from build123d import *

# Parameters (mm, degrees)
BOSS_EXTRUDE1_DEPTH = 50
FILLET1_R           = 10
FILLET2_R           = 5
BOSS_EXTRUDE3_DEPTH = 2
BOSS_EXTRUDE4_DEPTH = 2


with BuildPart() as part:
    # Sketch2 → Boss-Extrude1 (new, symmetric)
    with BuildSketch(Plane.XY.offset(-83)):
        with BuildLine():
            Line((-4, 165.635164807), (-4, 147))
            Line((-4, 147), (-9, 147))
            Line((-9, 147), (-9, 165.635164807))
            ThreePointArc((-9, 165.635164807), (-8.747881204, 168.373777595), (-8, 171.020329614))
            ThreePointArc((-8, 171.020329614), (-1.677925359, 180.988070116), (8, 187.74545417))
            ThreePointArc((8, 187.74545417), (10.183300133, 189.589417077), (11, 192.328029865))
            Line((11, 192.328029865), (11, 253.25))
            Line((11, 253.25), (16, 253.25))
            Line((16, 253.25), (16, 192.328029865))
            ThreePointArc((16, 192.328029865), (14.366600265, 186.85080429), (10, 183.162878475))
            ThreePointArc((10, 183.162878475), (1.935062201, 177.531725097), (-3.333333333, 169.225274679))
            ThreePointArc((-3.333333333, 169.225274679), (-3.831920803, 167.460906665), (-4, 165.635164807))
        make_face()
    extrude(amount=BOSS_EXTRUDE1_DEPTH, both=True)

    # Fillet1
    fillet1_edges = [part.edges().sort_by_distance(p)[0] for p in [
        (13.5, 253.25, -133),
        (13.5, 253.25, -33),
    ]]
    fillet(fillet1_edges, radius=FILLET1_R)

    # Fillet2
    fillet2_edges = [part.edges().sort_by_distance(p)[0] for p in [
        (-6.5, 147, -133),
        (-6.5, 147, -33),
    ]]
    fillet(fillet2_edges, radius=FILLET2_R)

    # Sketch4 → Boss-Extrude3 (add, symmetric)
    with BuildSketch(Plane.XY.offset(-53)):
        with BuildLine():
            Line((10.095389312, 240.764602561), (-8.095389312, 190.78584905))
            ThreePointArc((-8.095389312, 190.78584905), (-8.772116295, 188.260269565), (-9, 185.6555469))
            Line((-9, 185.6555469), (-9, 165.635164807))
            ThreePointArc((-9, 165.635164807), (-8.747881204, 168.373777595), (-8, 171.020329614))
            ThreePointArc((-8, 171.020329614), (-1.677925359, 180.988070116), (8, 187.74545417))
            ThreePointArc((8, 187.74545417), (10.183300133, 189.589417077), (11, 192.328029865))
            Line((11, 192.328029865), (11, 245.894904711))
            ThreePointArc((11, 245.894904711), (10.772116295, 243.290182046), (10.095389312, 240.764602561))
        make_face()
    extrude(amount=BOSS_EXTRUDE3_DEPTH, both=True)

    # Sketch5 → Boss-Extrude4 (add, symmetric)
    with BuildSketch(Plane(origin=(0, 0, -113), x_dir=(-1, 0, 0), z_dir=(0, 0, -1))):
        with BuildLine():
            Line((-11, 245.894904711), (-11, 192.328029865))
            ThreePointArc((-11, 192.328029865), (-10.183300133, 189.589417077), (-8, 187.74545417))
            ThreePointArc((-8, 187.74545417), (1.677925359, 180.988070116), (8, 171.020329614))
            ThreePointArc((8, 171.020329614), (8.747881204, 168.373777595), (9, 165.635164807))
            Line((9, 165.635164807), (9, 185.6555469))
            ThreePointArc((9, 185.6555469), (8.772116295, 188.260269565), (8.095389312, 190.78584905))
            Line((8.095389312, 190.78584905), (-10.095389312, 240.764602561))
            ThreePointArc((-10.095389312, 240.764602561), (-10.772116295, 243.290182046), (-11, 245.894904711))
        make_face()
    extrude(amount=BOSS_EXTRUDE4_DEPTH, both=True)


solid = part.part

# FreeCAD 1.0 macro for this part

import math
import FreeCAD as App
import Part
import Sketcher

V = App.Vector
Q = App.Units.Quantity


def edges_at(feature, points):
    """Names of the edges that pass closest to the given points."""
    edges = feature.Shape.Edges
    near = lambda p: min(range(len(edges)), key=lambda i: edges[i].distToShape(Part.Vertex(*p))[0])
    return sorted({f"Edge{near(p) + 1}" for p in points})

doc = App.newDocument("Part")
body = doc.addObject("PartDesign::Body", "Body")

sketch1 = doc.addObject("Sketcher::SketchObject", "Sketch")
body.addObject(sketch1)
sketch1.AttachmentSupport = (doc.XY_Plane, [""])
sketch1.MapMode = "FlatFace"
sketch1.AttachmentOffset = App.Placement(V(0, 0, -83), App.Rotation())
sketch1.addGeometry([
    Part.LineSegment(V(-4, 147, 0), V(-4, 165.635165, 0)),
    Part.ArcOfCircle(Part.Circle(V(6, 165.635165, 0), V(0, 0, 1), 10), math.radians(158.96053), math.radians(180)),
    Part.ArcOfCircle(Part.Circle(V(20, 160.25, 0), V(0, 0, 1), 25), math.radians(113.578178), math.radians(158.96053)),
    Part.ArcOfCircle(Part.Circle(V(6, 192.32803, 0), V(0, 0, 1), 10), math.radians(-66.421822), math.radians(0)),
    Part.LineSegment(V(16, 192.32803, 0), V(16, 253.25, 0)),
    Part.LineSegment(V(16, 253.25, 0), V(11, 253.25, 0)),
    Part.LineSegment(V(11, 253.25, 0), V(11, 192.32803, 0)),
    Part.ArcOfCircle(Part.Circle(V(6, 192.32803, 0), V(0, 0, 1), 5), math.radians(-66.421822), math.radians(0)),
    Part.ArcOfCircle(Part.Circle(V(20, 160.25, 0), V(0, 0, 1), 30), math.radians(113.578178), math.radians(158.96053)),
    Part.ArcOfCircle(Part.Circle(V(6, 165.635165, 0), V(0, 0, 1), 15), math.radians(158.96053), math.radians(180)),
    Part.LineSegment(V(-9, 165.635165, 0), V(-9, 147, 0)),
    Part.LineSegment(V(-9, 147, 0), V(-4, 147, 0)),
], False)
sketch1.addConstraint([
    Sketcher.Constraint("Tangent", 0, 2, 1, 2),
    Sketcher.Constraint("Tangent", 1, 1, 2, 2),
    Sketcher.Constraint("Tangent", 2, 1, 3, 1),
    Sketcher.Constraint("Tangent", 3, 2, 4, 1),
    Sketcher.Constraint("Coincident", 4, 2, 5, 1),
    Sketcher.Constraint("Coincident", 5, 2, 6, 1),
    Sketcher.Constraint("Tangent", 6, 2, 7, 2),
    Sketcher.Constraint("Tangent", 7, 1, 8, 1),
    Sketcher.Constraint("Tangent", 8, 2, 9, 1),
    Sketcher.Constraint("Tangent", 9, 2, 10, 1),
    Sketcher.Constraint("Coincident", 10, 2, 11, 1),
    Sketcher.Constraint("Coincident", 11, 2, 0, 1),
    Sketcher.Constraint("Vertical", 0),
    Sketcher.Constraint("Vertical", 4),
    Sketcher.Constraint("Horizontal", 5),
    Sketcher.Constraint("Vertical", 6),
    Sketcher.Constraint("Vertical", 10),
    Sketcher.Constraint("Horizontal", 11),
    Sketcher.Constraint("Coincident", 7, 3, 3, 3),
    Sketcher.Constraint("Coincident", 8, 3, 2, 3),
    Sketcher.Constraint("Coincident", 9, 3, 1, 3),
    Sketcher.Constraint("Equal", 1, 3),
    Sketcher.Constraint("Vertical", 1, 3, 3, 3),
    Sketcher.Constraint("Radius", 1, 10.0),
    Sketcher.Constraint("Radius", 2, 25.0),
    Sketcher.Constraint("Radius", 7, 5.0),
    Sketcher.Constraint("DistanceX", -1, 1, 1, 3, 6.0),
    Sketcher.Constraint("DistanceX", -1, 1, 2, 3, 20.0),
    Sketcher.Constraint("DistanceY", -1, 1, 10, 2, 147.0),
    Sketcher.Constraint("DistanceY", -1, 1, 2, 3, 160.25),
    Sketcher.Constraint("DistanceY", -1, 1, 4, 2, 253.25),
])
pad1 = doc.addObject("PartDesign::Pad", "Pad")
body.addObject(pad1)
pad1.Profile = sketch1
pad1.Length = 100
pad1.Midplane = True
doc.recompute()

fillet = doc.addObject("PartDesign::Fillet", "Fillet")
body.addObject(fillet)
fillet.Base = (pad1, edges_at(pad1, [(13.5, 253.25, -133), (13.5, 253.25, -33)]))
fillet.Radius = 10
doc.recompute()

fillet2 = doc.addObject("PartDesign::Fillet", "Fillet001")
body.addObject(fillet2)
fillet2.Base = (fillet, edges_at(fillet, [(-6.5, 147, -133), (-6.5, 147, -33)]))
fillet2.Radius = 5

sketch2 = doc.addObject("Sketcher::SketchObject", "Sketch001")
body.addObject(sketch2)
sketch2.AttachmentSupport = (doc.XY_Plane, [""])
sketch2.MapMode = "FlatFace"
sketch2.AttachmentOffset = App.Placement(V(0, 0, -53), App.Rotation())
sketch2.addGeometry([
    Part.LineSegment(V(10.095389, 240.764603, 0), V(-8.095389, 190.785849, 0)),
    Part.ArcOfCircle(Part.Circle(V(6, 185.655547, 0), V(0, 0, 1), 15), math.radians(160), math.radians(180)),
    Part.LineSegment(V(-9, 185.655547, 0), V(-9, 165.635165, 0)),
    Part.ArcOfCircle(Part.Circle(V(6, 165.635165, 0), V(0, 0, 1), 15), math.radians(158.96053), math.radians(180)),
    Part.ArcOfCircle(Part.Circle(V(20, 160.25, 0), V(0, 0, 1), 30), math.radians(113.578178), math.radians(158.96053)),
    Part.ArcOfCircle(Part.Circle(V(6, 192.32803, 0), V(0, 0, 1), 5), math.radians(-66.421822), math.radians(0)),
    Part.LineSegment(V(11, 192.32803, 0), V(11, 245.894905, 0)),
    Part.ArcOfCircle(Part.Circle(V(-4, 245.894905, 0), V(0, 0, 1), 15), math.radians(-20), math.radians(0)),
], False)
sketch2.addConstraint([
    Sketcher.Constraint("Tangent", 0, 2, 1, 1),
    Sketcher.Constraint("Tangent", 1, 2, 2, 1),
    Sketcher.Constraint("Tangent", 2, 2, 3, 2),
    Sketcher.Constraint("Tangent", 3, 1, 4, 2),
    Sketcher.Constraint("Tangent", 4, 1, 5, 1),
    Sketcher.Constraint("Tangent", 5, 2, 6, 1),
    Sketcher.Constraint("Tangent", 6, 2, 7, 2),
    Sketcher.Constraint("Tangent", 7, 1, 0, 1),
    Sketcher.Constraint("Vertical", 2),
    Sketcher.Constraint("Vertical", 6),
    Sketcher.Constraint("Equal", 1, 3),
    Sketcher.Constraint("Equal", 3, 7),
    Sketcher.Constraint("Vertical", 3, 3, 5, 3),
    Sketcher.Constraint("Radius", 1, 15.0),
    Sketcher.Constraint("Radius", 4, 30.0),
    Sketcher.Constraint("Radius", 5, 5.0),
    Sketcher.Constraint("Angle", 0, Q("-110 deg")),
    Sketcher.Constraint("DistanceX", -1, 1, 1, 3, 6.0),
    Sketcher.Constraint("DistanceX", -1, 1, 4, 3, 20.0),
    Sketcher.Constraint("DistanceY", -1, 1, 4, 3, 160.25),
    Sketcher.Constraint("DistanceY", 2, 2, 2, 1, 20.020382),
])
pad2 = doc.addObject("PartDesign::Pad", "Pad001")
body.addObject(pad2)
pad2.Profile = sketch2
pad2.Length = 4
pad2.Midplane = True

sketch3 = doc.addObject("Sketcher::SketchObject", "Sketch002")
body.addObject(sketch3)
sketch3.AttachmentSupport = (doc.XY_Plane, [""])
sketch3.MapMode = "FlatFace"
sketch3.AttachmentOffset = App.Placement(V(0, 0, -113), App.Rotation())
sketch3.addGeometry([
    Part.LineSegment(V(11, 245.894905, 0), V(11, 192.32803, 0)),
    Part.ArcOfCircle(Part.Circle(V(6, 192.32803, 0), V(0, 0, 1), 5), math.radians(-66.421822), math.radians(0)),
    Part.ArcOfCircle(Part.Circle(V(20, 160.25, 0), V(0, 0, 1), 30), math.radians(113.578178), math.radians(158.96053)),
    Part.ArcOfCircle(Part.Circle(V(6, 165.635165, 0), V(0, 0, 1), 15), math.radians(158.96053), math.radians(180)),
    Part.LineSegment(V(-9, 165.635165, 0), V(-9, 185.655547, 0)),
    Part.ArcOfCircle(Part.Circle(V(6, 185.655547, 0), V(0, 0, 1), 15), math.radians(160), math.radians(180)),
    Part.LineSegment(V(-8.095389, 190.785849, 0), V(10.095389, 240.764603, 0)),
    Part.ArcOfCircle(Part.Circle(V(-4, 245.894905, 0), V(0, 0, 1), 15), math.radians(-20), math.radians(0)),
], False)
sketch3.addConstraint([
    Sketcher.Constraint("Tangent", 0, 2, 1, 2),
    Sketcher.Constraint("Tangent", 1, 1, 2, 1),
    Sketcher.Constraint("Tangent", 2, 2, 3, 1),
    Sketcher.Constraint("Tangent", 3, 2, 4, 1),
    Sketcher.Constraint("Tangent", 4, 2, 5, 2),
    Sketcher.Constraint("Tangent", 5, 1, 6, 1),
    Sketcher.Constraint("Tangent", 6, 2, 7, 1),
    Sketcher.Constraint("Tangent", 7, 2, 0, 1),
    Sketcher.Constraint("Vertical", 0),
    Sketcher.Constraint("Vertical", 4),
    Sketcher.Constraint("Equal", 3, 5),
    Sketcher.Constraint("Equal", 5, 7),
    Sketcher.Constraint("Vertical", 1, 3, 3, 3),
    Sketcher.Constraint("Radius", 1, 5.0),
    Sketcher.Constraint("Radius", 2, 30.0),
    Sketcher.Constraint("Radius", 3, 15.0),
    Sketcher.Constraint("Angle", 6, Q("70 deg")),
    Sketcher.Constraint("DistanceX", -1, 1, 1, 3, 6.0),
    Sketcher.Constraint("DistanceX", -1, 1, 2, 3, 20.0),
    Sketcher.Constraint("DistanceY", -1, 1, 2, 3, 160.25),
    Sketcher.Constraint("DistanceY", 0, 2, 0, 1, 53.566875),
])
pad3 = doc.addObject("PartDesign::Pad", "Pad002")
body.addObject(pad3)
pad3.Profile = sketch3
pad3.Length = 4
pad3.Midplane = True

doc.recompute()
